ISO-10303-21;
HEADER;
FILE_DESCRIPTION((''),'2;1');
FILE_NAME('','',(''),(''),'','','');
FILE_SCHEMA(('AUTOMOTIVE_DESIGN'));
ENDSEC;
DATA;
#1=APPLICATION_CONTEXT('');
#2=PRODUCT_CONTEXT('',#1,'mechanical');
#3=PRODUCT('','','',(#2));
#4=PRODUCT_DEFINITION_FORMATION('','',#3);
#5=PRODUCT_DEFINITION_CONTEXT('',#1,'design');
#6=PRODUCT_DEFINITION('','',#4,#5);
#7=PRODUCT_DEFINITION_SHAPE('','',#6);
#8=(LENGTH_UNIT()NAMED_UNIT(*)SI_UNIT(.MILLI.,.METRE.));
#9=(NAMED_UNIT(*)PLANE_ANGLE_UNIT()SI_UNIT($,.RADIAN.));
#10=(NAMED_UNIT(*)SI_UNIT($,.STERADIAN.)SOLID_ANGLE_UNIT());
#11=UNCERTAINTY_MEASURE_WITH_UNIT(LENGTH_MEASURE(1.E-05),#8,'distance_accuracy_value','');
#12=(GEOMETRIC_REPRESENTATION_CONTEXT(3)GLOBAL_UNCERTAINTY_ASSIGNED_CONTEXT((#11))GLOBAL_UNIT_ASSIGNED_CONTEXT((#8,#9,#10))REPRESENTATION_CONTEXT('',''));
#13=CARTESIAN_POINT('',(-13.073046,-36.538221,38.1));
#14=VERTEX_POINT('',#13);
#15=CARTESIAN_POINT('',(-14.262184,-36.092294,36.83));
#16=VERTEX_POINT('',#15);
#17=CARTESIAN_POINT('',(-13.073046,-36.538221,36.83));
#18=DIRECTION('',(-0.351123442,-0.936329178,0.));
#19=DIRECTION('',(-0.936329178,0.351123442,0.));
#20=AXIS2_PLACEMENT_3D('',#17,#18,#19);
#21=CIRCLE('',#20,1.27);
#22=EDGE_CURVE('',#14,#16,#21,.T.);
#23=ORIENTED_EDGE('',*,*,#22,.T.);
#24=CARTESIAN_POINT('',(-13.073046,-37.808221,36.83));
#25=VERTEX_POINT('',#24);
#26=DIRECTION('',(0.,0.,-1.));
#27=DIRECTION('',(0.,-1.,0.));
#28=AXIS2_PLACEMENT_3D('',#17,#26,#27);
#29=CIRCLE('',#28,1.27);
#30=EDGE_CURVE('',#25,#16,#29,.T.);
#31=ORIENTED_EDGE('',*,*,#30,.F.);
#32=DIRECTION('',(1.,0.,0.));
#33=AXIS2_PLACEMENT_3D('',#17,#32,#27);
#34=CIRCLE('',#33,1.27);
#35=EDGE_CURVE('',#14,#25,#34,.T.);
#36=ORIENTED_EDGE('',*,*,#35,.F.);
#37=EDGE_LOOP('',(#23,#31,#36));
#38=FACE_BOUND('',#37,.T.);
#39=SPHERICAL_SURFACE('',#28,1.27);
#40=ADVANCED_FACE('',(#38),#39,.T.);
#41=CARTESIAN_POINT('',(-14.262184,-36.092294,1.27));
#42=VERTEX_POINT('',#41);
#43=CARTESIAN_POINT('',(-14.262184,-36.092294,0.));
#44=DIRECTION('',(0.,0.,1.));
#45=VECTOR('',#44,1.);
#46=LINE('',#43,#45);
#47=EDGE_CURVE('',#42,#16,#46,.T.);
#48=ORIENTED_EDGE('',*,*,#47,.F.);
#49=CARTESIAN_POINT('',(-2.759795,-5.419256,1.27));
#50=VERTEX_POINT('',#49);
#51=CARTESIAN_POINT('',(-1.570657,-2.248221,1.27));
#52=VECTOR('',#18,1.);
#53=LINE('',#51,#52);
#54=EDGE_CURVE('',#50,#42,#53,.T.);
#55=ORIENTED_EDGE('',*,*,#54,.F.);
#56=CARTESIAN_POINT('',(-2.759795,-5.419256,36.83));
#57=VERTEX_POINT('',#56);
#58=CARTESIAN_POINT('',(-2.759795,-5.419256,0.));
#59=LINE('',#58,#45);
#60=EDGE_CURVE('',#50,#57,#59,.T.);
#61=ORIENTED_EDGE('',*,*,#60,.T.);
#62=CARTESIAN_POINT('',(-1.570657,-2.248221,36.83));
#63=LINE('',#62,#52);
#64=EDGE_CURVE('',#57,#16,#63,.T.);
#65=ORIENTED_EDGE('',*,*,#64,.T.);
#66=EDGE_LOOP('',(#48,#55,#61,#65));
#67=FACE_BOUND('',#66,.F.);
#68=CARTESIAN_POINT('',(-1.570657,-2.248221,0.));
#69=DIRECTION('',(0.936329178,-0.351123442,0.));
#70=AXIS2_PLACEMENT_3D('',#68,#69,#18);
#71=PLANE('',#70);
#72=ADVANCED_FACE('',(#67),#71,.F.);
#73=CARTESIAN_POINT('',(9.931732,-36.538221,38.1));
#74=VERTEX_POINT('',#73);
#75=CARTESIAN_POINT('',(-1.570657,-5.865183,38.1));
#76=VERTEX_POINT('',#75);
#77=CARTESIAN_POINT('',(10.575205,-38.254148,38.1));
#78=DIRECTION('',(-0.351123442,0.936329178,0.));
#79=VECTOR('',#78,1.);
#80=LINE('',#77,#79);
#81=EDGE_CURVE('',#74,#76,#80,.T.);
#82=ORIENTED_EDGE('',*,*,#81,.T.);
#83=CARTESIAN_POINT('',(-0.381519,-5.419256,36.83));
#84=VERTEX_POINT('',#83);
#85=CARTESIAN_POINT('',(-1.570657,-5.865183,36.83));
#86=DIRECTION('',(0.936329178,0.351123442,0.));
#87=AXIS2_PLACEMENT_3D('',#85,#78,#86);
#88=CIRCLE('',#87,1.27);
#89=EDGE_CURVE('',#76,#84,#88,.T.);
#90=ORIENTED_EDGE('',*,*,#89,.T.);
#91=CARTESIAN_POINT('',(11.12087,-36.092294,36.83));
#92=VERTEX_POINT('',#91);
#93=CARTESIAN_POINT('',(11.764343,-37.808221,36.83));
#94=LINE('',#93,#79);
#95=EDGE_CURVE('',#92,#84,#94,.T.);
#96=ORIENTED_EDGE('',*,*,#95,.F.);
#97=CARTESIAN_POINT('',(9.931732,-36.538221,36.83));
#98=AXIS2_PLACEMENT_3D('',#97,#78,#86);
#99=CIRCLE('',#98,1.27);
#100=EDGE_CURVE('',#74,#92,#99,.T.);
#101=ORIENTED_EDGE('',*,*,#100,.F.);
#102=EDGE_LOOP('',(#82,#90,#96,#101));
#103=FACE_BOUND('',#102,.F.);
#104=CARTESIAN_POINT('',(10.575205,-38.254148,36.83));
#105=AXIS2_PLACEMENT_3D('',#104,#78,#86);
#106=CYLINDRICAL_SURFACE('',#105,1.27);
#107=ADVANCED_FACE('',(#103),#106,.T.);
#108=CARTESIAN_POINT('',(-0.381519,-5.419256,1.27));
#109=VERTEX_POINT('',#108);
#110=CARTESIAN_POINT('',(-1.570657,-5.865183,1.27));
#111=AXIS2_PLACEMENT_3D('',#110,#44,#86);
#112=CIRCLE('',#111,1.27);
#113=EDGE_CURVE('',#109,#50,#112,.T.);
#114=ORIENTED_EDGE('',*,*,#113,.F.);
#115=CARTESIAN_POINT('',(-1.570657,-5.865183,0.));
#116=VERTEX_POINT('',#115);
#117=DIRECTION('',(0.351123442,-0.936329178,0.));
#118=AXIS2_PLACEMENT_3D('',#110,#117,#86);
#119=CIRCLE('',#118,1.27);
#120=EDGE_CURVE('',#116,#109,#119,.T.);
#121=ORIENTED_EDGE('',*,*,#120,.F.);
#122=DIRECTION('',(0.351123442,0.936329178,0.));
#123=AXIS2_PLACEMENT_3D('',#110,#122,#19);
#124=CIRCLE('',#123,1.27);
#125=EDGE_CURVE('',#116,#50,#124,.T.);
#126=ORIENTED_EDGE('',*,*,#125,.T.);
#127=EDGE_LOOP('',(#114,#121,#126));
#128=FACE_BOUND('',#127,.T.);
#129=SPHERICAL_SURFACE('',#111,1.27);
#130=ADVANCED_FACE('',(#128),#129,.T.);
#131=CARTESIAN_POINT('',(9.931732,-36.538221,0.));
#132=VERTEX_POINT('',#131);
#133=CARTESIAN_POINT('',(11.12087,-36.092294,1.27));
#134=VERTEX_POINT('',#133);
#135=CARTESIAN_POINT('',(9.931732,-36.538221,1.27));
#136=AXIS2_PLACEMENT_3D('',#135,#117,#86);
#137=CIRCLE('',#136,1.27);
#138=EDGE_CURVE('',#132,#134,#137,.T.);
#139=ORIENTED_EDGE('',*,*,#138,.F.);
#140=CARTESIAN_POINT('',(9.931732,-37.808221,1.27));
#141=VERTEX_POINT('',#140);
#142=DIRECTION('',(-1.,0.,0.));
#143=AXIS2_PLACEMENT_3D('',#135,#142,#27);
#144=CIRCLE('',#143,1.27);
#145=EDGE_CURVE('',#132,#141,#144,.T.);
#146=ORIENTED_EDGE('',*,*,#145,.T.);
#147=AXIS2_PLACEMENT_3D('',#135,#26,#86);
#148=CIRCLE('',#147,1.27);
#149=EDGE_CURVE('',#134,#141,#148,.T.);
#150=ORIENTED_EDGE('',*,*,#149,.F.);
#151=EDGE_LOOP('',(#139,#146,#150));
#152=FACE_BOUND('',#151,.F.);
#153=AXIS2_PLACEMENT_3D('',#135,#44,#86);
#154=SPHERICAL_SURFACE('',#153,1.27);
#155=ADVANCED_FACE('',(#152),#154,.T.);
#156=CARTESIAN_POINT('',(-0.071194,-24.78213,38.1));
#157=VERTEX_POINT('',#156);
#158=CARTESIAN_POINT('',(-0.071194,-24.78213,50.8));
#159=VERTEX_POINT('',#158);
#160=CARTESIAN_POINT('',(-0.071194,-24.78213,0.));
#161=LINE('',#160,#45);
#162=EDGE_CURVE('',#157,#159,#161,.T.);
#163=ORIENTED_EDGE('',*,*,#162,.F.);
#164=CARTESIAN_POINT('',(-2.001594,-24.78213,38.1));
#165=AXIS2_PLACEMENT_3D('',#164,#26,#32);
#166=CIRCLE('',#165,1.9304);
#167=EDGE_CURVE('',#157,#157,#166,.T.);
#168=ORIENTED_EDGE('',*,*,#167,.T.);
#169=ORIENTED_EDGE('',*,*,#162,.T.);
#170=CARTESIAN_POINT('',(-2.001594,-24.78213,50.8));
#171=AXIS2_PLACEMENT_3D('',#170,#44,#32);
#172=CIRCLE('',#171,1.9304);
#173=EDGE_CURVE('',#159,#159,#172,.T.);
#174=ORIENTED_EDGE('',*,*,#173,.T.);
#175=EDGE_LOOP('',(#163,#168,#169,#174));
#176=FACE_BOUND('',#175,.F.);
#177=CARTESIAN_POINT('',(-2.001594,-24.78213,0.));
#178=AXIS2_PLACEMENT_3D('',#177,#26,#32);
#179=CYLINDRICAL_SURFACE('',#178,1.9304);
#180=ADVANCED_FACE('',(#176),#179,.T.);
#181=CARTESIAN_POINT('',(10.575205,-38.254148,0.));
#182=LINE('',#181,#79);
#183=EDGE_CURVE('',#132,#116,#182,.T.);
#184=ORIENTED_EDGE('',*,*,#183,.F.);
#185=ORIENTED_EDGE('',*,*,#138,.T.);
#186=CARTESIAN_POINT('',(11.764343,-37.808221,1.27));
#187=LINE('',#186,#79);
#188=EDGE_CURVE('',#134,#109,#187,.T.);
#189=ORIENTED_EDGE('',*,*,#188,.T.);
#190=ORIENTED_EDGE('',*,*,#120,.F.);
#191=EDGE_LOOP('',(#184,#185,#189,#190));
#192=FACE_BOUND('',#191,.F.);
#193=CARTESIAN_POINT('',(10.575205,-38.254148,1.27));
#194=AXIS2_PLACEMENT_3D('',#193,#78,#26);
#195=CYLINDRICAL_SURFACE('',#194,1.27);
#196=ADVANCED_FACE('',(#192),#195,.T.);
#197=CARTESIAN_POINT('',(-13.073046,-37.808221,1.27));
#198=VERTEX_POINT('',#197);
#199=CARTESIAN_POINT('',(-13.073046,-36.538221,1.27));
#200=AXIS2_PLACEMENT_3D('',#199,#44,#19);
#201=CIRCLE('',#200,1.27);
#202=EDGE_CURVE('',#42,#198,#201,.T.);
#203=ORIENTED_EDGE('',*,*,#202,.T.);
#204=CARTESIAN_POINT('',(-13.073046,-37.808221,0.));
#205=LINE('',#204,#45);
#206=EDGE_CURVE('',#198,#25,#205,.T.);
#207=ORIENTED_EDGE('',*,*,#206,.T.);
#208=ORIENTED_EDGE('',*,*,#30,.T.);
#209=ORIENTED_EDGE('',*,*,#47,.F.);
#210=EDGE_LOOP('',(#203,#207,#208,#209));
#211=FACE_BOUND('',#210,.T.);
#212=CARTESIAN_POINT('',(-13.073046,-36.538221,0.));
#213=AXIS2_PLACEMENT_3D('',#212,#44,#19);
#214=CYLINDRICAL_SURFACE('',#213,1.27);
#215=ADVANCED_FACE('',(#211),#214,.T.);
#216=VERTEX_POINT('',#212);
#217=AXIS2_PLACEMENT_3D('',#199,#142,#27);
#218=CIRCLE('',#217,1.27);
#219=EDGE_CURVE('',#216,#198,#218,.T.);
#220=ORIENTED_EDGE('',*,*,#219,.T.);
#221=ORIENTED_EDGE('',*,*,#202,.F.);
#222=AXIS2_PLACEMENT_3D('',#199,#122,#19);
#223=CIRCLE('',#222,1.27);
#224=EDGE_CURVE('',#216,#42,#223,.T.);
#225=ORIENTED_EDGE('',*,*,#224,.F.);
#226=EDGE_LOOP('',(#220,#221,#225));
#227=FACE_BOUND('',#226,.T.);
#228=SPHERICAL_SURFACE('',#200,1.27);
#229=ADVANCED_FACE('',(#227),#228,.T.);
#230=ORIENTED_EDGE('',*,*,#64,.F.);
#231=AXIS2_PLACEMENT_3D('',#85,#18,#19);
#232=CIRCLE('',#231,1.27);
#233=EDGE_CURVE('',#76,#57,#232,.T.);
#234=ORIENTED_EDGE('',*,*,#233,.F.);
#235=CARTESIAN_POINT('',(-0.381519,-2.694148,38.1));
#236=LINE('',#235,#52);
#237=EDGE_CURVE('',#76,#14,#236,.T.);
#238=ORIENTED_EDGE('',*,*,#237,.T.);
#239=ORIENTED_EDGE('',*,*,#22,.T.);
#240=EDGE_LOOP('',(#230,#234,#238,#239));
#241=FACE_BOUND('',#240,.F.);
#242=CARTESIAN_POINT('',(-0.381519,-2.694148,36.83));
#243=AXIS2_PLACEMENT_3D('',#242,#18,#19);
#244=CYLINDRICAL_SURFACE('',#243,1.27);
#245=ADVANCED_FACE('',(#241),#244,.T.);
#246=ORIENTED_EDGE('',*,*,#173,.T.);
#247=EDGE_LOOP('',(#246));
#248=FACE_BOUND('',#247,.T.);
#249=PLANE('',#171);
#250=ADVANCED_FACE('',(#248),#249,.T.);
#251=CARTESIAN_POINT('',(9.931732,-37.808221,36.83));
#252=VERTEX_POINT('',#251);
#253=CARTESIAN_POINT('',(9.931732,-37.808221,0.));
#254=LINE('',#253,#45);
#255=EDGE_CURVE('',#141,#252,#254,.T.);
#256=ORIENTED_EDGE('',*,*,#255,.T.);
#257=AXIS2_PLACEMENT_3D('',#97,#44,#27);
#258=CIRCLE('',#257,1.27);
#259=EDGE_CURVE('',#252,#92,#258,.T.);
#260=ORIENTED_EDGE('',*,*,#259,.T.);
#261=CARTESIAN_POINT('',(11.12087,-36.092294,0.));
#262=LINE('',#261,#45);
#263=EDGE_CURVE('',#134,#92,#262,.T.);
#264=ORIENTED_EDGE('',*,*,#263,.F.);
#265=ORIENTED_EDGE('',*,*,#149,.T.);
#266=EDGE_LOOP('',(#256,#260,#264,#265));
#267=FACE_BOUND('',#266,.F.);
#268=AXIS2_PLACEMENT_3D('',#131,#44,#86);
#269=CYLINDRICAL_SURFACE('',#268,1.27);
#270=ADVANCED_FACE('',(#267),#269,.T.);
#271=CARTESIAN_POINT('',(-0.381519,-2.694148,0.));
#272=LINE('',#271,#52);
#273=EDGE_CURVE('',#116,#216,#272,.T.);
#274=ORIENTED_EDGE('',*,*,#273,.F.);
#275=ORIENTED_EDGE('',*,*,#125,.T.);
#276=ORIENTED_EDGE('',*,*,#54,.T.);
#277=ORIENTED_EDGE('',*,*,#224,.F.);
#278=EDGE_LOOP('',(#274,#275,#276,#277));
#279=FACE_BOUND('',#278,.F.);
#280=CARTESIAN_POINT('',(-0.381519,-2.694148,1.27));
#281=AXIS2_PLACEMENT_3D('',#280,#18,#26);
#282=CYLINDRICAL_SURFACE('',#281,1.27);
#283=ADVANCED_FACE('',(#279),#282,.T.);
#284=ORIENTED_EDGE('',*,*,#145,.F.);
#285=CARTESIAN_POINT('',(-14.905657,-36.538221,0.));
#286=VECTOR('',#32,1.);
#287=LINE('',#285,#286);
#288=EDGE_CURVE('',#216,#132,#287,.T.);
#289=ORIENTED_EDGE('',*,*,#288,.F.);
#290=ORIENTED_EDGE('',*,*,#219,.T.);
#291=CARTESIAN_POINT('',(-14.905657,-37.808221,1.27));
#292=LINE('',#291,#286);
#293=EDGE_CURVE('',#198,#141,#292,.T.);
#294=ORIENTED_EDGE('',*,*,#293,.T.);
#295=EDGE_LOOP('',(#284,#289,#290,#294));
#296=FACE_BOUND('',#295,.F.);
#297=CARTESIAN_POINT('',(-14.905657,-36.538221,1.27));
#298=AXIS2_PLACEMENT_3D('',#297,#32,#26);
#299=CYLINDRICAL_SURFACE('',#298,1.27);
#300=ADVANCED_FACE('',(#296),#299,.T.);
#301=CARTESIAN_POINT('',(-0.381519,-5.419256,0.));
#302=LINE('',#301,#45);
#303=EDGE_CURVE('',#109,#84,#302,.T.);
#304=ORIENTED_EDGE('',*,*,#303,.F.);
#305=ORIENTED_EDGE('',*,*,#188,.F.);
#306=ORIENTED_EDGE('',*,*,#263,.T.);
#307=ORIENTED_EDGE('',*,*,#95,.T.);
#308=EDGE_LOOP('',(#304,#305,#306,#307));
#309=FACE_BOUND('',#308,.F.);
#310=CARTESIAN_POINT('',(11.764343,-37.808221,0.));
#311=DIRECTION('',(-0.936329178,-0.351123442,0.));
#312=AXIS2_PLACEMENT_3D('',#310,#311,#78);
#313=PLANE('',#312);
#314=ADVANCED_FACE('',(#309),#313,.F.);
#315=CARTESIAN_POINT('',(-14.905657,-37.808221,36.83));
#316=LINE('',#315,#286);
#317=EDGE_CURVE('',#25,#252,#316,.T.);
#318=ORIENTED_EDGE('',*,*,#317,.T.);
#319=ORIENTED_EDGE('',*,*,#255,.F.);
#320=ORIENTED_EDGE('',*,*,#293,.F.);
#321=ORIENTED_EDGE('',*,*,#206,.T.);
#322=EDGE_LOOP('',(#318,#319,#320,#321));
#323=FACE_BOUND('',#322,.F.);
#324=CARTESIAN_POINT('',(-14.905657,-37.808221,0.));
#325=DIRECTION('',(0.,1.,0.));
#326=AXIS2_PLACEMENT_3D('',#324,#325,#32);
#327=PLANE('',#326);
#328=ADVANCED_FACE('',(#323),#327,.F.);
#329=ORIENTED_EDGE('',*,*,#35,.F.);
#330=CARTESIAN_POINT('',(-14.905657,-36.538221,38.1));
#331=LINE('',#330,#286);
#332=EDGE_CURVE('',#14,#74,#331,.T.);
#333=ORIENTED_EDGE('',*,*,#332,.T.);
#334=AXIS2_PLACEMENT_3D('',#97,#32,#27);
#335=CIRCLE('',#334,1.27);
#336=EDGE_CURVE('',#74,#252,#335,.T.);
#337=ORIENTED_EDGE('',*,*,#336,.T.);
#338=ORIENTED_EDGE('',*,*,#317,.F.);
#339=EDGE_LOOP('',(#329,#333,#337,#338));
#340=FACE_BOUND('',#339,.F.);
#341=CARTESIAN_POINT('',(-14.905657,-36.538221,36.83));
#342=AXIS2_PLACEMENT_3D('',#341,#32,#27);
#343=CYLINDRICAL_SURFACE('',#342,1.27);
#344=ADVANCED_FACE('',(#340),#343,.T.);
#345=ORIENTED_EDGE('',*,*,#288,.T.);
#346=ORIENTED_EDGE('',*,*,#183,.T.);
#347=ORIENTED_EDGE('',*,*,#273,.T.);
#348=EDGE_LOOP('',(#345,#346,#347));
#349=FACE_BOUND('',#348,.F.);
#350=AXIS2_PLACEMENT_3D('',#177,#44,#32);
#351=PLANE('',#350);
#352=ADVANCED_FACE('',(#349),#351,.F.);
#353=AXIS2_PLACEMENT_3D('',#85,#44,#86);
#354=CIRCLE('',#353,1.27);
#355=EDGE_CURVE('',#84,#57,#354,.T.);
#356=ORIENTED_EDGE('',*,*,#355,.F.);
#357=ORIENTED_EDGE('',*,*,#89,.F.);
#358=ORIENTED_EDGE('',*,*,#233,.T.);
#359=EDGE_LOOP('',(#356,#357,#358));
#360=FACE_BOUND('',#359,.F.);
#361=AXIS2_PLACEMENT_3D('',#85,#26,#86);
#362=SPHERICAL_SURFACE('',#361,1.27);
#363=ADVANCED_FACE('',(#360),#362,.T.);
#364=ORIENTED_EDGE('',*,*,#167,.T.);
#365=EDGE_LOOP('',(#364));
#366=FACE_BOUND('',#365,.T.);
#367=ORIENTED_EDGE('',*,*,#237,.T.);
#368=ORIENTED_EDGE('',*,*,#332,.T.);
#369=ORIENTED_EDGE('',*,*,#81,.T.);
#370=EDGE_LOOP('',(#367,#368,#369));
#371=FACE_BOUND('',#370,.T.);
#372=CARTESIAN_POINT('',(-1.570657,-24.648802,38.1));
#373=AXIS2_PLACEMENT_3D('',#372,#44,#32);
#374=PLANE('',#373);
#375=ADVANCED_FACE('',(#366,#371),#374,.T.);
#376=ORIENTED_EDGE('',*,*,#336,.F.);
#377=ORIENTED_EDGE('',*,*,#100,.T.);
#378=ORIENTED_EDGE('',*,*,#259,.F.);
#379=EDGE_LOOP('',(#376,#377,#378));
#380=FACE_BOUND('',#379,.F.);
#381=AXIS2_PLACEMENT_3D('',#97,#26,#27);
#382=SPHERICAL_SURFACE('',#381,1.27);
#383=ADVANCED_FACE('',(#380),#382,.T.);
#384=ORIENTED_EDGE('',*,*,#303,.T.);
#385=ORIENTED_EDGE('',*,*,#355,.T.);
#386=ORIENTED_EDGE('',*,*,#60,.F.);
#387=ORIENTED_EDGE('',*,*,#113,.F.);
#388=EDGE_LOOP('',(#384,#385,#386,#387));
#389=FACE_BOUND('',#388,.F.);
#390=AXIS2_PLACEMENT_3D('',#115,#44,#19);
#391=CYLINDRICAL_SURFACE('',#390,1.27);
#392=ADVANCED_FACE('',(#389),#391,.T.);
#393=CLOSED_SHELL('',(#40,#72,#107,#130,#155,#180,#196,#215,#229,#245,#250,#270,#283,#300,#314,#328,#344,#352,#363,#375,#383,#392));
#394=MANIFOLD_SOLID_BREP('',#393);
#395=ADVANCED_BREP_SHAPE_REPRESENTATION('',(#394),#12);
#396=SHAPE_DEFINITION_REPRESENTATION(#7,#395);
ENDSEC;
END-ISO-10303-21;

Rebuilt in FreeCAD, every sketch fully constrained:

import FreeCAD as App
import Part
import Sketcher
from FreeCAD import Vector
Q = App.Units.Quantity


def edges_at(feature, points):
    """Names of the edges that pass closest to the given points."""
    edges = feature.Shape.Edges
    near = lambda p: min(range(len(edges)), key=lambda i: edges[i].distToShape(Part.Vertex(*p))[0])
    return sorted({f"Edge{near(p) + 1}" for p in points})


def add_polygon(sketch, points):
    """Adds a closed chain of lines whose ends are joined by coincident constraints."""
    first, n = sketch.GeometryCount, len(points)
    for a, b in zip(points, points[1:] + points[:1]):
        sketch.addGeometry(Part.LineSegment(App.Vector(*a, 0), App.Vector(*b, 0)), False)
    for i in range(n):
        sketch.addConstraint(Sketcher.Constraint("Coincident", first + i, 2, first + (i + 1) % n, 1))

doc = App.newDocument("Part")
body = doc.addObject("PartDesign::Body", "Body")

# Sketch on XY plane
sketch1 = body.newObject("Sketcher::SketchObject", "Sketch")
sketch1.AttachmentSupport = (doc.getObject("XY_Plane"), [""])
sketch1.MapMode = "FlatFace"
add_polygon(sketch1, [(-1.570657, -2.248221), (-14.905657, -37.808221), (11.764343, -37.808221)])  # lines 0-2
sketch1.addConstraint([
    Sketcher.Constraint("Horizontal", 1),
    Sketcher.Constraint("Equal", 0, 2),
    Sketcher.Constraint("DistanceX", 1, 1, 1, 2, Q("1.05 in")),
    Sketcher.Constraint("DistanceY", 0, 2, 2, 2, Q("1.4 in")),
    Sketcher.Constraint("DistanceY", 0, 2, -1, 1, 37.808221),
    Sketcher.Constraint("DistanceX", 0, 2, -1, 1, 14.905657),
])
pad1 = body.newObject("PartDesign::Pad", "Pad")
pad1.Profile = sketch1
pad1.Length = Q("1.5 in")

# Sketch on XY plane
sketch2 = body.newObject("Sketcher::SketchObject", "Sketch001")
sketch2.AttachmentSupport = (doc.getObject("XY_Plane"), [""])
sketch2.MapMode = "FlatFace"
sketch2.addGeometry(Part.Circle(Vector(-2.001594, -24.78213, 0), Vector(0, 0, 1), 1.9304), False)
sketch2.addConstraint([
    Sketcher.Constraint("Diameter", 0, Q("0.152 in")),
    Sketcher.Constraint("DistanceY", 0, 3, -1, 1, 24.78213),
    Sketcher.Constraint("DistanceX", 0, 3, -1, 1, 2.001594),
])
pad2 = body.newObject("PartDesign::Pad", "Pad001")
pad2.Profile = sketch2
pad2.Length = Q("2 in")
doc.recompute()

fillet = body.newObject("PartDesign::Fillet", "Fillet")
fillet.Base = (pad2, edges_at(pad2, [
    (-1.571, -2.248, 19.05),
    (11.764, -37.808, 19.05),
    (-14.906, -37.808, 19.05),
    (-1.571, -37.808, 38.1),
    (5.097, -20.028, 38.1),
    (-8.238, -20.028, 38.1),
    (5.097, -20.028, 0),
    (-8.238, -20.028, 0),
    (-1.571, -37.808, 0),
]))
fillet.Radius = Q("0.05 in")

doc.recompute()
